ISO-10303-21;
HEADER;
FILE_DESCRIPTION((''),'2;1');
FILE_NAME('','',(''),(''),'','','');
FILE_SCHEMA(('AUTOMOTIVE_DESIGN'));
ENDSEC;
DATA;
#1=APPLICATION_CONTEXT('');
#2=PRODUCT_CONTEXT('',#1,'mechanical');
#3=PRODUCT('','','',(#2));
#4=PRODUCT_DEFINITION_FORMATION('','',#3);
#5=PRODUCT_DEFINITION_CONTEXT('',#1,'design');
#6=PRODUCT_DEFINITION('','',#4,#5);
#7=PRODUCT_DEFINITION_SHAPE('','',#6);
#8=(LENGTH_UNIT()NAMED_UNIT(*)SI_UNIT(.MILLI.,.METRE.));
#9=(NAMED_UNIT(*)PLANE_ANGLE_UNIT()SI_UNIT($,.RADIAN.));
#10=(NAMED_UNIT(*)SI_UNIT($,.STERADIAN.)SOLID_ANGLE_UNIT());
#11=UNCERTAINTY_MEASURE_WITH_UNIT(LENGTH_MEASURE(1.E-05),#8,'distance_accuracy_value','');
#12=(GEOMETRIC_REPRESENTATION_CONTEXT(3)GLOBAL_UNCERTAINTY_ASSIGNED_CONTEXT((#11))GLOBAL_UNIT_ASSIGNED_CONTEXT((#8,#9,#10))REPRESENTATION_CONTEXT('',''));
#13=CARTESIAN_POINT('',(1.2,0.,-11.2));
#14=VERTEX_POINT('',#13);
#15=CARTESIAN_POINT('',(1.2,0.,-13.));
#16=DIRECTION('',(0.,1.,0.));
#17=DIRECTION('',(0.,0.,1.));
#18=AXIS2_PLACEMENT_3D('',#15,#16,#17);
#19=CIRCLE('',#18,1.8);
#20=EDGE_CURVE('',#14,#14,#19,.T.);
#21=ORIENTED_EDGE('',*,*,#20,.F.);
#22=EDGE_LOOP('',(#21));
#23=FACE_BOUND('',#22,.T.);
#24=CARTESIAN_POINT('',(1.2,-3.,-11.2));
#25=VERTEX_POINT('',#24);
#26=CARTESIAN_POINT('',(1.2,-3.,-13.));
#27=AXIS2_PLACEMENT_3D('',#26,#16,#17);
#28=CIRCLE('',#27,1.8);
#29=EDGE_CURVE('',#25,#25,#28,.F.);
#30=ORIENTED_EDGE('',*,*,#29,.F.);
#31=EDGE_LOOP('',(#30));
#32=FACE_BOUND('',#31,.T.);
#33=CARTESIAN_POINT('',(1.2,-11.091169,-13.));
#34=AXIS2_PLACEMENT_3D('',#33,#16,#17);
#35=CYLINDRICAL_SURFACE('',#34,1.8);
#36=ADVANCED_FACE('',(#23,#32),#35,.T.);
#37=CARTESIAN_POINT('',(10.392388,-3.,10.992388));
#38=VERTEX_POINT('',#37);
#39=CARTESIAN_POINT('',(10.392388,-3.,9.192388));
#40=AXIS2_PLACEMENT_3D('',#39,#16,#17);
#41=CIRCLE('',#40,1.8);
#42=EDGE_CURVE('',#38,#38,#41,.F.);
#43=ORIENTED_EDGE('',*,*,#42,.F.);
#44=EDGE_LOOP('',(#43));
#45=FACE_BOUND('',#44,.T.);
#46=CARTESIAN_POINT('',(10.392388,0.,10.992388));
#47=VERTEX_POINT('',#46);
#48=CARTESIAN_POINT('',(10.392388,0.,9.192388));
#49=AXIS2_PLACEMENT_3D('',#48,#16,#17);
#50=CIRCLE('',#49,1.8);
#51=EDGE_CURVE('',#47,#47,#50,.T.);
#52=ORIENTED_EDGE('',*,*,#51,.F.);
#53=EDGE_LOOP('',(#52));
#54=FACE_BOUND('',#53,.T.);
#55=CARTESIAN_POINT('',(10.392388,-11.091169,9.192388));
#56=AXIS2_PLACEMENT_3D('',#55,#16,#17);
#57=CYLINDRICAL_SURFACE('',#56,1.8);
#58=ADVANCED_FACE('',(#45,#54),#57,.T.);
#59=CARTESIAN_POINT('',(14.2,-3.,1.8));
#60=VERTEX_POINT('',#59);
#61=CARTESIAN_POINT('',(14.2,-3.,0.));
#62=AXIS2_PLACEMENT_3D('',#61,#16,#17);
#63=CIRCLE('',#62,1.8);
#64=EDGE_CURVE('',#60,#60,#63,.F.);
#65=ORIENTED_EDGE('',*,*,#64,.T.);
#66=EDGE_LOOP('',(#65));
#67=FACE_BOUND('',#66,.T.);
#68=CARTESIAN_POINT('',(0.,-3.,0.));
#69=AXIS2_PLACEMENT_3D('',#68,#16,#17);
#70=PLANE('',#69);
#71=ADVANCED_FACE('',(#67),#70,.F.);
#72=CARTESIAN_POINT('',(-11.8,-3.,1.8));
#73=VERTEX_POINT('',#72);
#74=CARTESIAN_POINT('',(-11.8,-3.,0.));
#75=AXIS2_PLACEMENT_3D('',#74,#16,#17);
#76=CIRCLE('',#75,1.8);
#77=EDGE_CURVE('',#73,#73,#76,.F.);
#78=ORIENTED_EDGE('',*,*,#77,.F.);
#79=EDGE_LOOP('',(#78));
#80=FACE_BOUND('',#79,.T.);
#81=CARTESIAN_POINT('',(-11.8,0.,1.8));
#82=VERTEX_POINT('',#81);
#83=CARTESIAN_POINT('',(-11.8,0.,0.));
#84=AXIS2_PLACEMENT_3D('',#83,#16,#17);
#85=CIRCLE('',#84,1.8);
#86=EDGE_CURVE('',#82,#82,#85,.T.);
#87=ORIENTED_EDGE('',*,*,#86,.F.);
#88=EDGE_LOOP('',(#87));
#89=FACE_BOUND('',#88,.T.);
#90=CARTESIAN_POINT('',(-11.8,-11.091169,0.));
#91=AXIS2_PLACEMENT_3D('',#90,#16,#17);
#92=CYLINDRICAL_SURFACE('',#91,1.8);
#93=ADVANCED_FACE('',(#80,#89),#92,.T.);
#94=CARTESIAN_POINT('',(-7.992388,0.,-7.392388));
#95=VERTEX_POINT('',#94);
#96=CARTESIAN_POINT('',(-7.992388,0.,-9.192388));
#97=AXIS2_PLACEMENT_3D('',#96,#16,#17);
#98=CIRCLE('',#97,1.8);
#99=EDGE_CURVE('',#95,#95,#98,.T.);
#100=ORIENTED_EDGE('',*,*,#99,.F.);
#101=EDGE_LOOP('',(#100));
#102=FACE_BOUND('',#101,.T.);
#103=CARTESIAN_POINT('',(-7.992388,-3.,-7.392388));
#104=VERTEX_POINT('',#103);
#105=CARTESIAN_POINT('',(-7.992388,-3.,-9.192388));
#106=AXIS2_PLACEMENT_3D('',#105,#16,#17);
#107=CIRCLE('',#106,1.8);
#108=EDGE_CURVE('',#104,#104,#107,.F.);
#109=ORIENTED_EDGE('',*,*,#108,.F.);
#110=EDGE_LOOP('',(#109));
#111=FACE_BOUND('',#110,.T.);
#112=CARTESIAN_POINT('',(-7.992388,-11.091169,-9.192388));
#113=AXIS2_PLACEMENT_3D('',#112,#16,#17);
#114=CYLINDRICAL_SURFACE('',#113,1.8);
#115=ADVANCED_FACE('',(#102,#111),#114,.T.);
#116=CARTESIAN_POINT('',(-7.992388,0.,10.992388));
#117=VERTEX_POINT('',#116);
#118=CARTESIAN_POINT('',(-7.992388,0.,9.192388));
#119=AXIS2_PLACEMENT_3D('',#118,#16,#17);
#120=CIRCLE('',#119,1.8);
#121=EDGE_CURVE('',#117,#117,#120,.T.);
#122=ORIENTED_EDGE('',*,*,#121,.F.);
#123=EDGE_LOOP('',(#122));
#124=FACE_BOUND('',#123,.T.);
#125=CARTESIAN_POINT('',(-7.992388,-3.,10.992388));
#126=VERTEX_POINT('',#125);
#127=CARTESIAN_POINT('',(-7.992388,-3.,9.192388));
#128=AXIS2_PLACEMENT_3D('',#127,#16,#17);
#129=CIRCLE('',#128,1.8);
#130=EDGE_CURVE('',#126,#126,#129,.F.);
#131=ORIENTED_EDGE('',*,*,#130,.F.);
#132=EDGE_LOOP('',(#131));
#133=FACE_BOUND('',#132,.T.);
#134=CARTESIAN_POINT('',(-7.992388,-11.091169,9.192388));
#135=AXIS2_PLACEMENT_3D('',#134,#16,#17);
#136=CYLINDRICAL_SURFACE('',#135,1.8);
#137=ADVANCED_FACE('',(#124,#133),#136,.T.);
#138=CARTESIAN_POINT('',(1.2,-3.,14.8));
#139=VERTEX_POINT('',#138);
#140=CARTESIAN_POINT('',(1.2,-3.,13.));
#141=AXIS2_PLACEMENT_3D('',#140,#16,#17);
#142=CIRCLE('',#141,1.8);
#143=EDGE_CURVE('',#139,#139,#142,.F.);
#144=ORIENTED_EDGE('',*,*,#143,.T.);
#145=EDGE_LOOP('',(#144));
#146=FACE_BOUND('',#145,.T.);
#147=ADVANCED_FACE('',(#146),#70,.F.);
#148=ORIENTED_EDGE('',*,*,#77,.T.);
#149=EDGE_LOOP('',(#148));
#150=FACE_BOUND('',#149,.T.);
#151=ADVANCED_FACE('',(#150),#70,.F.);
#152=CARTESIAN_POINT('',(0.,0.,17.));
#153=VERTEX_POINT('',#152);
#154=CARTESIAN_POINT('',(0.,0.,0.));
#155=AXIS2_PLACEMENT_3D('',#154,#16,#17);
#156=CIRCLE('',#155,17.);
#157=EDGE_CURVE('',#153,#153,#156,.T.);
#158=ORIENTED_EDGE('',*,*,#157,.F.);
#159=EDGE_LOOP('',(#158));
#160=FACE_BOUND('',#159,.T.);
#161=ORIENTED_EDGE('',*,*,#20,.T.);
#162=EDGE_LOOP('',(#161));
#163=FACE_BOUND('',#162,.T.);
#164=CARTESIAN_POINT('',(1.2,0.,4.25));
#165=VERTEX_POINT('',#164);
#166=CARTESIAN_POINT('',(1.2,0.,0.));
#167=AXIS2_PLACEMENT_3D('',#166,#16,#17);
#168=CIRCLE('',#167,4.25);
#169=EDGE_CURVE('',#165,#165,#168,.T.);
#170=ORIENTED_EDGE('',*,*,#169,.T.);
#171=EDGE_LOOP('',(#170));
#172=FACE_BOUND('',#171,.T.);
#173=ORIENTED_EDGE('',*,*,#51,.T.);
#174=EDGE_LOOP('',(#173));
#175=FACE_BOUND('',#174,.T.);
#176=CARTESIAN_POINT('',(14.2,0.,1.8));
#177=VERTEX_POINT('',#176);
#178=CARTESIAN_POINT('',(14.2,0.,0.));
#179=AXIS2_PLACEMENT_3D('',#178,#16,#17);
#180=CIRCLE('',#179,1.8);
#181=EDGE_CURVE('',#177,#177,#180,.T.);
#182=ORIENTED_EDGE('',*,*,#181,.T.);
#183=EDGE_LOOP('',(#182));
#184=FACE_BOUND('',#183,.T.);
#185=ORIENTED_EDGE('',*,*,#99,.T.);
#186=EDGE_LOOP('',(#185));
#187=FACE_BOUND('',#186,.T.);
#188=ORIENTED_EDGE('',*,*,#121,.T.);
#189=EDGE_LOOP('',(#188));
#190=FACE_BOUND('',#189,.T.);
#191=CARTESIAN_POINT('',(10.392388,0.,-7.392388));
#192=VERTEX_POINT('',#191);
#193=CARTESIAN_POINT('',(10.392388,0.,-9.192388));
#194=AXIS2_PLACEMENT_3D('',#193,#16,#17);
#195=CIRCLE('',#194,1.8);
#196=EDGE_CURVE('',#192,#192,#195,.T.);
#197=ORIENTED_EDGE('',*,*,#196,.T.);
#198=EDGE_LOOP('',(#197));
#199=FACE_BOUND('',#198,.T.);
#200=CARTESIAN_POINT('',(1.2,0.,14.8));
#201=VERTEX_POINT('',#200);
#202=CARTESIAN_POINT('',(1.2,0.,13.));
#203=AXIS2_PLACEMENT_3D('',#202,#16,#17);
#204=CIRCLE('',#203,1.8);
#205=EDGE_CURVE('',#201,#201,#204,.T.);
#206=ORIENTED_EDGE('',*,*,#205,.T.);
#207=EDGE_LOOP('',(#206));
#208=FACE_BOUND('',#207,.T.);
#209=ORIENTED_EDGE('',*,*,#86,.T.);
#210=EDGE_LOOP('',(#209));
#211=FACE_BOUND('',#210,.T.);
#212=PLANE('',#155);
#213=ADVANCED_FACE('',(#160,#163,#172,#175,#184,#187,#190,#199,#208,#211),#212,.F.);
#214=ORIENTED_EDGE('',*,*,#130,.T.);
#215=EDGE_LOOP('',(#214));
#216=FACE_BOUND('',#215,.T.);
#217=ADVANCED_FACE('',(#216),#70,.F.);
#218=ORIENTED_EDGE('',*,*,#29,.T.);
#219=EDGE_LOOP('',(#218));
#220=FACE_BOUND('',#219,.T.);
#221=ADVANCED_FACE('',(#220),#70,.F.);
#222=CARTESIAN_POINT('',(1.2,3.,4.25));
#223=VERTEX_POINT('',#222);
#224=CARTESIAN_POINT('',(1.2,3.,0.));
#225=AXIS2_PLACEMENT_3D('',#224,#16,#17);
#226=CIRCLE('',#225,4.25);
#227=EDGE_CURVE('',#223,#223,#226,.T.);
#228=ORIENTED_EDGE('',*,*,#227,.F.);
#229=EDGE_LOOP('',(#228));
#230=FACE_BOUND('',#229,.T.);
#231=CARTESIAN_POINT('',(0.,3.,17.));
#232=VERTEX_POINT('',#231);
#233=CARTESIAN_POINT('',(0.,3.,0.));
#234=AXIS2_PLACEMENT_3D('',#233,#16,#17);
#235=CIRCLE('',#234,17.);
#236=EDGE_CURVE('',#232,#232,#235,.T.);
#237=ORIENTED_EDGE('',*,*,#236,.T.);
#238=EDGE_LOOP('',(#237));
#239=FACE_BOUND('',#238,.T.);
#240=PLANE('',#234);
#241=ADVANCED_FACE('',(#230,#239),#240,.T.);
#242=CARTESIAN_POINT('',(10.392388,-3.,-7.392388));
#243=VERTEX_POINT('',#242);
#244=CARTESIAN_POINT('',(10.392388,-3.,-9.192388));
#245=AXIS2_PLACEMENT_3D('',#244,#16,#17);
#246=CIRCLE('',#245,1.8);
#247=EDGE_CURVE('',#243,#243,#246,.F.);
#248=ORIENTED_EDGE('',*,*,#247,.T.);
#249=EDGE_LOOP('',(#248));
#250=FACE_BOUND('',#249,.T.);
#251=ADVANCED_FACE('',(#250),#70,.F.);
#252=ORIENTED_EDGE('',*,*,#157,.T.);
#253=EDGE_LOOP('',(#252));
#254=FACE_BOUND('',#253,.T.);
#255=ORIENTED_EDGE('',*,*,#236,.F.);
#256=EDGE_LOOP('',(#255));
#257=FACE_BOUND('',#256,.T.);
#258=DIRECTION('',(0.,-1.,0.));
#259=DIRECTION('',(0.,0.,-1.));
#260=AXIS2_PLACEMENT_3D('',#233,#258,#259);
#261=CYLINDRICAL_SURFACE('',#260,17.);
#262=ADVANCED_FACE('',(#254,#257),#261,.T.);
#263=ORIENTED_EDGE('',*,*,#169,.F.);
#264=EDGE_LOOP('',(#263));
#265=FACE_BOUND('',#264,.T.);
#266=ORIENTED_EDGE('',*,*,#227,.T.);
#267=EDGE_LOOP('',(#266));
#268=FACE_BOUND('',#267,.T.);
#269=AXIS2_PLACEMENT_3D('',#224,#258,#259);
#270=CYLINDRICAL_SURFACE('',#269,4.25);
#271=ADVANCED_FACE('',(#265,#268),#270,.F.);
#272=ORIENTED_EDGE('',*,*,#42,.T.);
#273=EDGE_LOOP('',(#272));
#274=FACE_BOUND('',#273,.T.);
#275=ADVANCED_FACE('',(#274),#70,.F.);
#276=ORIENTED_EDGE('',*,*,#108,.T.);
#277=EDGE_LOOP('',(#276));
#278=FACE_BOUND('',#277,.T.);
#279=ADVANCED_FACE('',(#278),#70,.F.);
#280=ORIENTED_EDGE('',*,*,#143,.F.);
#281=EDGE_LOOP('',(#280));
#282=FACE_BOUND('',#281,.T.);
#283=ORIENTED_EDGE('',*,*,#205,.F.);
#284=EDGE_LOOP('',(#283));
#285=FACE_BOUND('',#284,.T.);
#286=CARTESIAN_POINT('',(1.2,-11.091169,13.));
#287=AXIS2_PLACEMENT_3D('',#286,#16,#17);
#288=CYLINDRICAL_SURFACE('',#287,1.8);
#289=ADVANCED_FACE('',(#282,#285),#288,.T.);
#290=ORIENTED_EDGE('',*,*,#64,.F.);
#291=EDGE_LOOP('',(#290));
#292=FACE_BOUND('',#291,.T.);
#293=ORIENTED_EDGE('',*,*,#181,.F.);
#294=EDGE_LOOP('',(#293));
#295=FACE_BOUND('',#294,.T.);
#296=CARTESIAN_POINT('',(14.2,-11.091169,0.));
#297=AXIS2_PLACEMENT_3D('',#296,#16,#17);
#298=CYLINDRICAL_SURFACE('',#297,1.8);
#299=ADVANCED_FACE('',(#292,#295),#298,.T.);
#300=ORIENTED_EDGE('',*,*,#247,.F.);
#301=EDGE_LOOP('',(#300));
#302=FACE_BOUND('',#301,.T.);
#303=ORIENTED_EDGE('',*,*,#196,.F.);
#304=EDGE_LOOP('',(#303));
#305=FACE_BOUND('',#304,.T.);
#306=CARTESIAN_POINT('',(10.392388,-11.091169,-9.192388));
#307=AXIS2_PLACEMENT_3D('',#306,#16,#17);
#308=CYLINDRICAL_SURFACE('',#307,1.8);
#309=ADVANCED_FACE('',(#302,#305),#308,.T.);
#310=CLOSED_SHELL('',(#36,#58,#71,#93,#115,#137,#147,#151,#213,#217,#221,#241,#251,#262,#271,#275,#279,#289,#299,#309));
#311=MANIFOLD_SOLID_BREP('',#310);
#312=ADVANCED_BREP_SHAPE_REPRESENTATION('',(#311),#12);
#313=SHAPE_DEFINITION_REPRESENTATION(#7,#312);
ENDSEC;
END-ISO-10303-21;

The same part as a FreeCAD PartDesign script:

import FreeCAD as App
import Part
import Sketcher

doc = App.newDocument("Part")
body = doc.addObject("PartDesign::Body", "Body")

# Sketch on XZ plane
sketch1 = body.newObject("Sketcher::SketchObject", "Sketch")
sketch1.AttachmentSupport = (doc.getObject("XZ_Plane"), [""])
sketch1.MapMode = "FlatFace"
sketch1.addGeometry([
    Part.Circle(App.Vector(0, 0, 0), App.Vector(0, 0, 1), 17),  # 0
    Part.Circle(App.Vector(-8, -9.2, 0), App.Vector(0, 0, 1), 1.8),  # 1
    Part.Circle(App.Vector(1.2, -13, 0), App.Vector(0, 0, 1), 1.8),  # 2
    Part.Circle(App.Vector(1.2, 0, 0), App.Vector(0, 0, 1), 4.2),  # 3
    Part.Circle(App.Vector(-11.8, 0, 0), App.Vector(0, 0, 1), 1.8),  # 4
    Part.Circle(App.Vector(-8, 9.2, 0), App.Vector(0, 0, 1), 1.8),  # 5
    Part.Circle(App.Vector(10.4, -9.2, 0), App.Vector(0, 0, 1), 1.8),  # 6
    Part.Circle(App.Vector(14.2, 0, 0), App.Vector(0, 0, 1), 1.8),  # 7
    Part.Circle(App.Vector(1.2, 13, 0), App.Vector(0, 0, 1), 1.8),  # 8
    Part.Circle(App.Vector(10.4, 9.2, 0), App.Vector(0, 0, 1), 1.8),  # 9
], False)
sketch1.addConstraint([
    Sketcher.Constraint("Coincident", 0, 3, -1, 1),
    Sketcher.Constraint("Equal", 1, 2),
    Sketcher.Constraint("Equal", 2, 4),
    Sketcher.Constraint("Equal", 4, 5),
    Sketcher.Constraint("Equal", 5, 6),
    Sketcher.Constraint("Equal", 6, 7),
    Sketcher.Constraint("Equal", 7, 8),
    Sketcher.Constraint("Equal", 8, 9),
    Sketcher.Constraint("Symmetric", 1, 3, 5, 3, -1),
    Sketcher.Constraint("Symmetric", 2, 3, 8, 3, -1),
    Sketcher.Constraint("Symmetric", 6, 3, 9, 3, -1),
    Sketcher.Constraint("PointOnObject", 3, 3, -1),
    Sketcher.Constraint("PointOnObject", 4, 3, -1),
    Sketcher.Constraint("PointOnObject", 7, 3, -1),
    Sketcher.Constraint("Horizontal", 1, 3, 6, 3),
    Sketcher.Constraint("Vertical", 2, 3, 3, 3),
    Sketcher.Constraint("Diameter", 0, 34.0),
    Sketcher.Constraint("Diameter", 1, 3.6),
    Sketcher.Constraint("Diameter", 3, 8.5),
    Sketcher.Constraint("DistanceY", 2, 3, -1, 1, 13.0),
    Sketcher.Constraint("DistanceX", 4, 3, 3, 3, 13.0),
    Sketcher.Constraint("DistanceX", 3, 3, 7, 3, 13.0),
    Sketcher.Constraint("DistanceX", -1, 1, 2, 3, 1.2),
    Sketcher.Constraint("DistanceX", 1, 3, -1, 1, 7.992388),
    Sketcher.Constraint("DistanceY", 1, 3, -1, 1, 9.192388),
    Sketcher.Constraint("DistanceX", -1, 1, 6, 3, 10.392388),
])
pad1 = body.newObject("PartDesign::Pad", "Pad")
pad1.Profile = sketch1
pad1.Length = 3
pad1.Reversed = True

# Sketch on XZ plane
sketch2 = body.newObject("Sketcher::SketchObject", "Sketch001")
sketch2.AttachmentSupport = (doc.getObject("XZ_Plane"), [""])
sketch2.MapMode = "FlatFace"
sketch2.AttachmentOffset = App.Placement(App.Vector(0, 0, 3), App.Rotation())
sketch2.addGeometry(Part.Circle(App.Vector(-8, -9.2, 0), App.Vector(0, 0, 1), 1.8), False)
sketch2.addConstraint([
    Sketcher.Constraint("Diameter", 0, 3.6),
    Sketcher.Constraint("DistanceX", 0, 3, -1, 1, 7.992388),
    Sketcher.Constraint("DistanceY", 0, 3, -1, 1, 9.192388),
])
pad2 = body.newObject("PartDesign::Pad", "Pad001")
pad2.Profile = sketch2
pad2.Length = 6
pad2.Reversed = True
doc.recompute()

datumline = body.newObject("PartDesign::Line", "DatumLine")
datumline.Placement = App.Placement(App.Vector(1.2, 0, 0), App.Rotation(App.Vector(0, 0, 1), App.Vector(0, 1, 0)))
polarpattern = body.newObject("PartDesign::PolarPattern", "PolarPattern")
polarpattern.Originals = [pad2]
polarpattern.Axis = (datumline, [""])
polarpattern.Angle = 360
polarpattern.Occurrences = 8
body.Tip = polarpattern

doc.recompute()
